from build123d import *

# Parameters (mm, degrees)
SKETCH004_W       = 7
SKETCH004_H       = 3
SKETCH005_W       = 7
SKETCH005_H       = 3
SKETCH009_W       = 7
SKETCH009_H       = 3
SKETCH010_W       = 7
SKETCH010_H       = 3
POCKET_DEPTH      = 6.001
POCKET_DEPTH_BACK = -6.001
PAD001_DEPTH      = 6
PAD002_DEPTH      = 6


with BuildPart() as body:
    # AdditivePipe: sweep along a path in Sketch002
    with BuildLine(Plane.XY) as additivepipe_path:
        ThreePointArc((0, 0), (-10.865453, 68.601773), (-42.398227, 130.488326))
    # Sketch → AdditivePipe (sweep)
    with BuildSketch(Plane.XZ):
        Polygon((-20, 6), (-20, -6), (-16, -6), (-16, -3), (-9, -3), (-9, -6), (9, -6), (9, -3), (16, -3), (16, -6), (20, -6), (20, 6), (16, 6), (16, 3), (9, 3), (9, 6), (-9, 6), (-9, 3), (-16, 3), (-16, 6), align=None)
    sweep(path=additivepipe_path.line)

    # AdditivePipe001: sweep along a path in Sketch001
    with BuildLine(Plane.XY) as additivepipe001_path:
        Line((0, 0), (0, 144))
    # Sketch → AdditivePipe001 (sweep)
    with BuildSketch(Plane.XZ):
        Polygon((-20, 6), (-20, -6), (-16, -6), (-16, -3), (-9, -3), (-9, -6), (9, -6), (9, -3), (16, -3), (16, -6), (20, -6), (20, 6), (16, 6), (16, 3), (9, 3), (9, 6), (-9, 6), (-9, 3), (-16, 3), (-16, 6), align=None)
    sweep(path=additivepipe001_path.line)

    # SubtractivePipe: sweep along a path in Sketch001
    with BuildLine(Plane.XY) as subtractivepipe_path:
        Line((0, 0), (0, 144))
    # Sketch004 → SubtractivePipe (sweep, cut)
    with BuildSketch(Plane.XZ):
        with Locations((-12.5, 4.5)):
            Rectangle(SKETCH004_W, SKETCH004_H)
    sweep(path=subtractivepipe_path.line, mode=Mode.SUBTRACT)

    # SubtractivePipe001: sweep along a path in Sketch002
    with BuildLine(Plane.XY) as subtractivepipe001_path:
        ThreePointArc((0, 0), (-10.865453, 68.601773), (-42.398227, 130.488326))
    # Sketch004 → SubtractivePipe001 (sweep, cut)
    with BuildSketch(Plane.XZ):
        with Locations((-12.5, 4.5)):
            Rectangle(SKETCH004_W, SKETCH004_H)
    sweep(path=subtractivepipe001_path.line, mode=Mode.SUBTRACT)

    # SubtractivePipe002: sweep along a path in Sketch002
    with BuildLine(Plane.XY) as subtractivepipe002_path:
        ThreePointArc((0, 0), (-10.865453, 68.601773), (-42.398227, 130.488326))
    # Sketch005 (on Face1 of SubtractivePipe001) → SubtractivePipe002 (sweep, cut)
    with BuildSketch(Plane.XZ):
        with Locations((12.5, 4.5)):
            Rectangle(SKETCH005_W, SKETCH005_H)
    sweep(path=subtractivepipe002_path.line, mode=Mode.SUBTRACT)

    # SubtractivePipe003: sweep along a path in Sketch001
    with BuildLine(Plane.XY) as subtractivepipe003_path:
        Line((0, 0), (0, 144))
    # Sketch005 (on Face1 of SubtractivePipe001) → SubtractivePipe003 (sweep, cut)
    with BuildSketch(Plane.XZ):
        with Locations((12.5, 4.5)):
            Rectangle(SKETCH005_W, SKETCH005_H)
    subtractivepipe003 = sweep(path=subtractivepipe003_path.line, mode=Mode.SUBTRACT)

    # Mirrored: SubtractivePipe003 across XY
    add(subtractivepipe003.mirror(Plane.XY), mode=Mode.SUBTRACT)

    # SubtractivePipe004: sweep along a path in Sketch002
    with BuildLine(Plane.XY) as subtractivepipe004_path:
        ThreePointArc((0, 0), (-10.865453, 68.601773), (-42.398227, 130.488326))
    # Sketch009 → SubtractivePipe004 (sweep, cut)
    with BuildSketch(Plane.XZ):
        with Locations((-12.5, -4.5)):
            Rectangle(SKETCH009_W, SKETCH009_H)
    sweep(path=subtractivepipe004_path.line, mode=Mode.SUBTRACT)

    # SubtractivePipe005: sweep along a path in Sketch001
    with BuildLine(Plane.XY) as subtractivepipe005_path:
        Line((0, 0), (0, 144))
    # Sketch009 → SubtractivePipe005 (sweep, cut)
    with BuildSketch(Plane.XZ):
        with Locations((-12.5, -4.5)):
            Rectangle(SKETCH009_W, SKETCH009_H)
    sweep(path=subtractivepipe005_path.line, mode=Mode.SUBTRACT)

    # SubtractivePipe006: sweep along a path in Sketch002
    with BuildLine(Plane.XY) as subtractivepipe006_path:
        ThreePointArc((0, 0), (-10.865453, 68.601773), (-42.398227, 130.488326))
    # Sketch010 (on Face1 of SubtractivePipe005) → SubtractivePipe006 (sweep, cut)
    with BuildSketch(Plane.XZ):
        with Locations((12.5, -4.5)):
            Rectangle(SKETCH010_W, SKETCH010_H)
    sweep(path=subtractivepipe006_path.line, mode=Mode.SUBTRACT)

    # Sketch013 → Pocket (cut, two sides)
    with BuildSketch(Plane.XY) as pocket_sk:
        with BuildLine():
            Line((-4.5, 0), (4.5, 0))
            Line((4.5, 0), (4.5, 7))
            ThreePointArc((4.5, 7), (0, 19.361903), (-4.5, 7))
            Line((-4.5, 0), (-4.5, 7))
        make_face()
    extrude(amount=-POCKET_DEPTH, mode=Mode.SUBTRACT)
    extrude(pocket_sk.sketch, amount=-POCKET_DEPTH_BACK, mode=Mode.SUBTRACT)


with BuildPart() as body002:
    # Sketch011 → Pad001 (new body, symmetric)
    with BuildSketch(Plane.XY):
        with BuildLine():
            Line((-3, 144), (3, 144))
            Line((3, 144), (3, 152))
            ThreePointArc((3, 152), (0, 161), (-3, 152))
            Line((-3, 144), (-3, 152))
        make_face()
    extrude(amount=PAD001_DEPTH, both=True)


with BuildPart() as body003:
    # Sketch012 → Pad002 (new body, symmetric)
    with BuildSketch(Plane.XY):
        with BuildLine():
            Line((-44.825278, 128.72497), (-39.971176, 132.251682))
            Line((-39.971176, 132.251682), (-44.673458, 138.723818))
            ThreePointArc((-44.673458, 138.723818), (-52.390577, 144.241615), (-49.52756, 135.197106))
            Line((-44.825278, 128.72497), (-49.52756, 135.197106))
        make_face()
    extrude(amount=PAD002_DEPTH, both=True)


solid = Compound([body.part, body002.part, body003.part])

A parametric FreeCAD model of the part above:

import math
import FreeCAD as App
import Part
import Sketcher
from FreeCAD import Vector
Q = App.Units.Quantity


def add_polygon(sketch, points):
    """Adds a closed chain of lines whose ends are joined by coincident constraints."""
    first, n = sketch.GeometryCount, len(points)
    for a, b in zip(points, points[1:] + points[:1]):
        sketch.addGeometry(Part.LineSegment(App.Vector(*a, 0), App.Vector(*b, 0)), False)
    for i in range(n):
        sketch.addConstraint(Sketcher.Constraint("Coincident", first + i, 2, first + (i + 1) % n, 1))

doc = App.newDocument("Part")
body = doc.addObject("PartDesign::Body", "Body")

# Sketch on XZ plane
sketch1 = body.newObject("Sketcher::SketchObject", "Sketch")
sketch1.AttachmentSupport = (doc.getObject("XZ_Plane"), [""])
sketch1.MapMode = "FlatFace"
add_polygon(sketch1, [(-20, 6), (-20, -6), (-16, -6), (-16, -3), (-9, -3), (-9, -6), (9, -6), (9, -3), (16, -3), (16, -6), (20, -6), (20, 6), (16, 6), (16, 3), (9, 3), (9, 6), (-9, 6), (-9, 3), (-16, 3), (-16, 6)])  # lines 0-19
sketch1.addConstraint([
    Sketcher.Constraint("Vertical", 0),
    Sketcher.Constraint("Horizontal", 1),
    Sketcher.Constraint("Vertical", 2),
    Sketcher.Constraint("Horizontal", 3),
    Sketcher.Constraint("Vertical", 4),
    Sketcher.Constraint("Horizontal", 5),
    Sketcher.Constraint("Vertical", 6),
    Sketcher.Constraint("Horizontal", 7),
    Sketcher.Constraint("Vertical", 8),
    Sketcher.Constraint("Horizontal", 9),
    Sketcher.Constraint("Vertical", 10),
    Sketcher.Constraint("Horizontal", 11),
    Sketcher.Constraint("Vertical", 12),
    Sketcher.Constraint("Horizontal", 13),
    Sketcher.Constraint("Vertical", 14),
    Sketcher.Constraint("Horizontal", 15),
    Sketcher.Constraint("Vertical", 16),
    Sketcher.Constraint("Horizontal", 17),
    Sketcher.Constraint("Vertical", 18),
    Sketcher.Constraint("Horizontal", 19),
    Sketcher.Constraint("Symmetric", 0, 2, 10, 2, -1, 1),
    Sketcher.Constraint("Symmetric", 2, 2, 12, 2, -1, 1),
    Sketcher.Constraint("Symmetric", 4, 2, 14, 2, -1, 1),
    Sketcher.Constraint("Symmetric", 6, 2, 16, 2, -1, 1),
    Sketcher.Constraint("Symmetric", 8, 2, 18, 2, -1, 1),
    Sketcher.Constraint("Symmetric", 3, 2, 6, 2, -2),
    Sketcher.Constraint("Symmetric", 1, 2, 8, 2, -2),
    Sketcher.Constraint("Horizontal", 1, 2, 4, 2),
    Sketcher.Constraint("DistanceX", 1, 1, 1, 2, Q("4 mm")),
    Sketcher.Constraint("DistanceX", 3, 1, 3, 2, Q("7 mm")),
    Sketcher.Constraint("DistanceX", 5, 1, 5, 2, Q("18 mm")),
    Sketcher.Constraint("DistanceY", 0, 2, 0, 1, Q("12 mm")),
    Sketcher.Constraint("DistanceY", 2, 1, 2, 2, Q("3 mm")),
])

# Sketch on XY plane
sketch2 = body.newObject("Sketcher::SketchObject", "Sketch001")
sketch2.AttachmentSupport = (doc.getObject("XY_Plane"), [""])
sketch2.MapMode = "FlatFace"
sketch2.addGeometry(Part.ArcOfCircle(Part.Circle(Vector(-222, 0, 0), Vector(0, 0, 1), 222), math.radians(0), math.radians(36)), False)
sketch2.addConstraint([
    Sketcher.Constraint("Coincident", 0, 1, -1, 1),
    Sketcher.Constraint("Radius", 0, Q("221.999993 mm")),
    Sketcher.Constraint("DistanceX", 0, 2, -1, 1, Q("42.398227 mm")),
    Sketcher.Constraint("DistanceY", -1, 1, 0, 2, Q("130.488326 mm")),
])
doc.recompute()

additivepipe = body.newObject("PartDesign::AdditivePipe", "AdditivePipe")
additivepipe.Profile = sketch1
additivepipe.Spine = (sketch2, ["Edge1"])

# Sketch on XZ plane
sketch3 = body.newObject("Sketcher::SketchObject", "Sketch002")
sketch3.AttachmentSupport = (doc.getObject("XZ_Plane"), [""])
sketch3.MapMode = "FlatFace"
add_polygon(sketch3, [(-20, 6), (-20, -6), (-16, -6), (-16, -3), (-9, -3), (-9, -6), (9, -6), (9, -3), (16, -3), (16, -6), (20, -6), (20, 6), (16, 6), (16, 3), (9, 3), (9, 6), (-9, 6), (-9, 3), (-16, 3), (-16, 6)])  # lines 0-19
sketch3.addConstraint([
    Sketcher.Constraint("Vertical", 0),
    Sketcher.Constraint("Horizontal", 1),
    Sketcher.Constraint("Vertical", 2),
    Sketcher.Constraint("Horizontal", 3),
    Sketcher.Constraint("Vertical", 4),
    Sketcher.Constraint("Horizontal", 5),
    Sketcher.Constraint("Vertical", 6),
    Sketcher.Constraint("Horizontal", 7),
    Sketcher.Constraint("Vertical", 8),
    Sketcher.Constraint("Horizontal", 9),
    Sketcher.Constraint("Vertical", 10),
    Sketcher.Constraint("Horizontal", 11),
    Sketcher.Constraint("Vertical", 12),
    Sketcher.Constraint("Horizontal", 13),
    Sketcher.Constraint("Vertical", 14),
    Sketcher.Constraint("Horizontal", 15),
    Sketcher.Constraint("Vertical", 16),
    Sketcher.Constraint("Horizontal", 17),
    Sketcher.Constraint("Vertical", 18),
    Sketcher.Constraint("Horizontal", 19),
    Sketcher.Constraint("Symmetric", 0, 2, 10, 2, -1, 1),
    Sketcher.Constraint("Symmetric", 2, 2, 12, 2, -1, 1),
    Sketcher.Constraint("Symmetric", 4, 2, 14, 2, -1, 1),
    Sketcher.Constraint("Symmetric", 6, 2, 16, 2, -1, 1),
    Sketcher.Constraint("Symmetric", 8, 2, 18, 2, -1, 1),
    Sketcher.Constraint("Symmetric", 3, 2, 6, 2, -2),
    Sketcher.Constraint("Symmetric", 1, 2, 8, 2, -2),
    Sketcher.Constraint("Horizontal", 1, 2, 4, 2),
    Sketcher.Constraint("DistanceX", 1, 1, 1, 2, Q("4 mm")),
    Sketcher.Constraint("DistanceX", 3, 1, 3, 2, Q("7 mm")),
    Sketcher.Constraint("DistanceX", 5, 1, 5, 2, Q("18 mm")),
    Sketcher.Constraint("DistanceY", 0, 2, 0, 1, Q("12 mm")),
    Sketcher.Constraint("DistanceY", 2, 1, 2, 2, Q("3 mm")),
])

# Sketch on XY plane
sketch4 = body.newObject("Sketcher::SketchObject", "Sketch003")
sketch4.AttachmentSupport = (doc.getObject("XY_Plane"), [""])
sketch4.MapMode = "FlatFace"
sketch4.addGeometry(Part.LineSegment(Vector(0, 0, 0), Vector(0, 144, 0)), False)
sketch4.addConstraint([
    Sketcher.Constraint("Vertical", 0),
    Sketcher.Constraint("Coincident", 0, 1, -1, 1),
    Sketcher.Constraint("DistanceY", 0, 1, 0, 2, Q("144 mm")),
])
doc.recompute()

additivepipe2 = body.newObject("PartDesign::AdditivePipe", "AdditivePipe001")
additivepipe2.Profile = sketch3
additivepipe2.Spine = (sketch4, ["Edge1"])

# Sketch on XZ plane
sketch5 = body.newObject("Sketcher::SketchObject", "Sketch004")
sketch5.AttachmentSupport = (doc.getObject("XZ_Plane"), [""])
sketch5.MapMode = "FlatFace"
add_polygon(sketch5, [(-16, 6), (-16, 3), (-9, 3), (-9, 6)])  # lines 0-3
sketch5.addConstraint([
    Sketcher.Constraint("Vertical", 0),
    Sketcher.Constraint("Horizontal", 1),
    Sketcher.Constraint("Vertical", 2),
    Sketcher.Constraint("Horizontal", 3),
    Sketcher.Constraint("DistanceX", 1, 1, 1, 2, Q("7 mm")),
    Sketcher.Constraint("DistanceY", 0, 2, 0, 1, Q("3 mm")),
    Sketcher.Constraint("DistanceX", 0, 2, -1, 1, Q("16 mm")),
    Sketcher.Constraint("DistanceY", -1, 1, 0, 2, Q("3 mm")),
])

# Sketch on XY plane
sketch6 = body.newObject("Sketcher::SketchObject", "Sketch005")
sketch6.AttachmentSupport = (doc.getObject("XY_Plane"), [""])
sketch6.MapMode = "FlatFace"
sketch6.addGeometry(Part.LineSegment(Vector(0, 0, 0), Vector(0, 144, 0)), False)
sketch6.addConstraint([
    Sketcher.Constraint("Vertical", 0),
    Sketcher.Constraint("Coincident", 0, 1, -1, 1),
    Sketcher.Constraint("DistanceY", 0, 1, 0, 2, Q("144 mm")),
])
doc.recompute()

subtractivepipe = body.newObject("PartDesign::SubtractivePipe", "SubtractivePipe")
subtractivepipe.Profile = sketch5
subtractivepipe.Spine = (sketch6, ["Edge1"])

# Sketch on XZ plane
sketch7 = body.newObject("Sketcher::SketchObject", "Sketch006")
sketch7.AttachmentSupport = (doc.getObject("XZ_Plane"), [""])
sketch7.MapMode = "FlatFace"
add_polygon(sketch7, [(-16, 6), (-16, 3), (-9, 3), (-9, 6)])  # lines 0-3
sketch7.addConstraint([
    Sketcher.Constraint("Vertical", 0),
    Sketcher.Constraint("Horizontal", 1),
    Sketcher.Constraint("Vertical", 2),
    Sketcher.Constraint("Horizontal", 3),
    Sketcher.Constraint("DistanceX", 1, 1, 1, 2, Q("7 mm")),
    Sketcher.Constraint("DistanceY", 0, 2, 0, 1, Q("3 mm")),
    Sketcher.Constraint("DistanceX", 0, 2, -1, 1, Q("16 mm")),
    Sketcher.Constraint("DistanceY", -1, 1, 0, 2, Q("3 mm")),
])

# Sketch on XY plane
sketch8 = body.newObject("Sketcher::SketchObject", "Sketch007")
sketch8.AttachmentSupport = (doc.getObject("XY_Plane"), [""])
sketch8.MapMode = "FlatFace"
sketch8.addGeometry(Part.ArcOfCircle(Part.Circle(Vector(-222, 0, 0), Vector(0, 0, 1), 222), math.radians(0), math.radians(36)), False)
sketch8.addConstraint([
    Sketcher.Constraint("Coincident", 0, 1, -1, 1),
    Sketcher.Constraint("Radius", 0, Q("221.999993 mm")),
    Sketcher.Constraint("DistanceX", 0, 2, -1, 1, Q("42.398227 mm")),
    Sketcher.Constraint("DistanceY", -1, 1, 0, 2, Q("130.488326 mm")),
])
doc.recompute()

subtractivepipe2 = body.newObject("PartDesign::SubtractivePipe", "SubtractivePipe001")
subtractivepipe2.Profile = sketch7
subtractivepipe2.Spine = (sketch8, ["Edge1"])

# Sketch on XZ plane
sketch9 = body.newObject("Sketcher::SketchObject", "Sketch008")
sketch9.AttachmentSupport = (doc.getObject("XZ_Plane"), [""])
sketch9.MapMode = "FlatFace"
add_polygon(sketch9, [(9, 6), (9, 3), (16, 3), (16, 6)])  # lines 0-3
sketch9.addConstraint([
    Sketcher.Constraint("Vertical", 0),
    Sketcher.Constraint("Horizontal", 1),
    Sketcher.Constraint("Vertical", 2),
    Sketcher.Constraint("Horizontal", 3),
    Sketcher.Constraint("DistanceX", 1, 1, 1, 2, Q("7 mm")),
    Sketcher.Constraint("DistanceY", 0, 2, 0, 1, Q("3 mm")),
    Sketcher.Constraint("DistanceX", -1, 1, 0, 2, Q("9 mm")),
    Sketcher.Constraint("DistanceY", -1, 1, 0, 2, Q("3 mm")),
])

# Sketch on XY plane
sketch10 = body.newObject("Sketcher::SketchObject", "Sketch009")
sketch10.AttachmentSupport = (doc.getObject("XY_Plane"), [""])
sketch10.MapMode = "FlatFace"
sketch10.addGeometry(Part.ArcOfCircle(Part.Circle(Vector(-222, 0, 0), Vector(0, 0, 1), 222), math.radians(0), math.radians(36)), False)
sketch10.addConstraint([
    Sketcher.Constraint("Coincident", 0, 1, -1, 1),
    Sketcher.Constraint("Radius", 0, Q("221.999993 mm")),
    Sketcher.Constraint("DistanceX", 0, 2, -1, 1, Q("42.398227 mm")),
    Sketcher.Constraint("DistanceY", -1, 1, 0, 2, Q("130.488326 mm")),
])
doc.recompute()

subtractivepipe3 = body.newObject("PartDesign::SubtractivePipe", "SubtractivePipe002")
subtractivepipe3.Profile = sketch9
subtractivepipe3.Spine = (sketch10, ["Edge1"])

# Sketch on XZ plane
sketch11 = body.newObject("Sketcher::SketchObject", "Sketch010")
sketch11.AttachmentSupport = (doc.getObject("XZ_Plane"), [""])
sketch11.MapMode = "FlatFace"
add_polygon(sketch11, [(9, 6), (9, 3), (16, 3), (16, 6)])  # lines 0-3
sketch11.addConstraint([
    Sketcher.Constraint("Vertical", 0),
    Sketcher.Constraint("Horizontal", 1),
    Sketcher.Constraint("Vertical", 2),
    Sketcher.Constraint("Horizontal", 3),
    Sketcher.Constraint("DistanceX", 1, 1, 1, 2, Q("7 mm")),
    Sketcher.Constraint("DistanceY", 0, 2, 0, 1, Q("3 mm")),
    Sketcher.Constraint("DistanceX", -1, 1, 0, 2, Q("9 mm")),
    Sketcher.Constraint("DistanceY", -1, 1, 0, 2, Q("3 mm")),
])

# Sketch on XY plane
sketch12 = body.newObject("Sketcher::SketchObject", "Sketch011")
sketch12.AttachmentSupport = (doc.getObject("XY_Plane"), [""])
sketch12.MapMode = "FlatFace"
sketch12.addGeometry(Part.LineSegment(Vector(0, 0, 0), Vector(0, 144, 0)), False)
sketch12.addConstraint([
    Sketcher.Constraint("Vertical", 0),
    Sketcher.Constraint("Coincident", 0, 1, -1, 1),
    Sketcher.Constraint("DistanceY", 0, 1, 0, 2, Q("144 mm")),
])
doc.recompute()

subtractivepipe4 = body.newObject("PartDesign::SubtractivePipe", "SubtractivePipe003")
subtractivepipe4.Profile = sketch11
subtractivepipe4.Spine = (sketch12, ["Edge1"])
doc.recompute()

mirrored = body.newObject("PartDesign::Mirrored", "Mirrored")
mirrored.Originals = [subtractivepipe4]
mirrored.MirrorPlane = (doc.getObject("XY_Plane"), [""])
body.Tip = mirrored

# Sketch on XZ plane
sketch13 = body.newObject("Sketcher::SketchObject", "Sketch012")
sketch13.AttachmentSupport = (doc.getObject("XZ_Plane"), [""])
sketch13.MapMode = "FlatFace"
add_polygon(sketch13, [(-16, -3), (-16, -6), (-9, -6), (-9, -3)])  # lines 0-3
sketch13.addConstraint([
    Sketcher.Constraint("Vertical", 0),
    Sketcher.Constraint("Horizontal", 1),
    Sketcher.Constraint("Vertical", 2),
    Sketcher.Constraint("Horizontal", 3),
    Sketcher.Constraint("DistanceX", 1, 1, 1, 2, Q("7 mm")),
    Sketcher.Constraint("DistanceY", 0, 2, 0, 1, Q("3 mm")),
    Sketcher.Constraint("DistanceX", 0, 2, -1, 1, Q("16 mm")),
    Sketcher.Constraint("DistanceY", 0, 2, -1, 1, Q("6 mm")),
])

# Sketch on XY plane
sketch14 = body.newObject("Sketcher::SketchObject", "Sketch013")
sketch14.AttachmentSupport = (doc.getObject("XY_Plane"), [""])
sketch14.MapMode = "FlatFace"
sketch14.addGeometry(Part.ArcOfCircle(Part.Circle(Vector(-222, 0, 0), Vector(0, 0, 1), 222), math.radians(0), math.radians(36)), False)
sketch14.addConstraint([
    Sketcher.Constraint("Coincident", 0, 1, -1, 1),
    Sketcher.Constraint("Radius", 0, Q("221.999993 mm")),
    Sketcher.Constraint("DistanceX", 0, 2, -1, 1, Q("42.398227 mm")),
    Sketcher.Constraint("DistanceY", -1, 1, 0, 2, Q("130.488326 mm")),
])
doc.recompute()

subtractivepipe5 = body.newObject("PartDesign::SubtractivePipe", "SubtractivePipe004")
subtractivepipe5.Profile = sketch13
subtractivepipe5.Spine = (sketch14, ["Edge1"])

# Sketch on XZ plane
sketch15 = body.newObject("Sketcher::SketchObject", "Sketch014")
sketch15.AttachmentSupport = (doc.getObject("XZ_Plane"), [""])
sketch15.MapMode = "FlatFace"
add_polygon(sketch15, [(-16, -3), (-16, -6), (-9, -6), (-9, -3)])  # lines 0-3
sketch15.addConstraint([
    Sketcher.Constraint("Vertical", 0),
    Sketcher.Constraint("Horizontal", 1),
    Sketcher.Constraint("Vertical", 2),
    Sketcher.Constraint("Horizontal", 3),
    Sketcher.Constraint("DistanceX", 1, 1, 1, 2, Q("7 mm")),
    Sketcher.Constraint("DistanceY", 0, 2, 0, 1, Q("3 mm")),
    Sketcher.Constraint("DistanceX", 0, 2, -1, 1, Q("16 mm")),
    Sketcher.Constraint("DistanceY", 0, 2, -1, 1, Q("6 mm")),
])

# Sketch on XY plane
sketch16 = body.newObject("Sketcher::SketchObject", "Sketch015")
sketch16.AttachmentSupport = (doc.getObject("XY_Plane"), [""])
sketch16.MapMode = "FlatFace"
sketch16.addGeometry(Part.LineSegment(Vector(0, 0, 0), Vector(0, 144, 0)), False)
sketch16.addConstraint([
    Sketcher.Constraint("Vertical", 0),
    Sketcher.Constraint("Coincident", 0, 1, -1, 1),
    Sketcher.Constraint("DistanceY", 0, 1, 0, 2, Q("144 mm")),
])
doc.recompute()

subtractivepipe6 = body.newObject("PartDesign::SubtractivePipe", "SubtractivePipe005")
subtractivepipe6.Profile = sketch15
subtractivepipe6.Spine = (sketch16, ["Edge1"])

# Sketch on XZ plane
sketch17 = body.newObject("Sketcher::SketchObject", "Sketch016")
sketch17.AttachmentSupport = (doc.getObject("XZ_Plane"), [""])
sketch17.MapMode = "FlatFace"
add_polygon(sketch17, [(9, -3), (9, -6), (16, -6), (16, -3)])  # lines 0-3
sketch17.addConstraint([
    Sketcher.Constraint("Vertical", 0),
    Sketcher.Constraint("Horizontal", 1),
    Sketcher.Constraint("Vertical", 2),
    Sketcher.Constraint("Horizontal", 3),
    Sketcher.Constraint("DistanceX", 1, 1, 1, 2, Q("7 mm")),
    Sketcher.Constraint("DistanceY", 0, 2, 0, 1, Q("3 mm")),
    Sketcher.Constraint("DistanceX", -1, 1, 0, 2, Q("9 mm")),
    Sketcher.Constraint("DistanceY", 0, 2, -1, 1, Q("6 mm")),
])

# Sketch on XY plane
sketch18 = body.newObject("Sketcher::SketchObject", "Sketch017")
sketch18.AttachmentSupport = (doc.getObject("XY_Plane"), [""])
sketch18.MapMode = "FlatFace"
sketch18.addGeometry(Part.ArcOfCircle(Part.Circle(Vector(-222, 0, 0), Vector(0, 0, 1), 222), math.radians(0), math.radians(36)), False)
sketch18.addConstraint([
    Sketcher.Constraint("Coincident", 0, 1, -1, 1),
    Sketcher.Constraint("Radius", 0, Q("221.999993 mm")),
    Sketcher.Constraint("DistanceX", 0, 2, -1, 1, Q("42.398227 mm")),
    Sketcher.Constraint("DistanceY", -1, 1, 0, 2, Q("130.488326 mm")),
])
doc.recompute()

subtractivepipe7 = body.newObject("PartDesign::SubtractivePipe", "SubtractivePipe006")
subtractivepipe7.Profile = sketch17
subtractivepipe7.Spine = (sketch18, ["Edge1"])

# Sketch on XY plane
sketch19 = body.newObject("Sketcher::SketchObject", "Sketch018")
sketch19.AttachmentSupport = (doc.getObject("XY_Plane"), [""])
sketch19.MapMode = "FlatFace"
sketch19.addGeometry([
    Part.LineSegment(Vector(-4, 0, 0), Vector(4, 0, 0)),
    Part.LineSegment(Vector(4, 0, 0), Vector(4, 7, 0)),
    Part.ArcOfCircle(Part.Circle(Vector(0, 12, 0), Vector(0, 0, 1), 7), math.radians(-50), math.radians(230)),
    Part.LineSegment(Vector(-4, 7, 0), Vector(-4, 0, 0)),
], False)
sketch19.addConstraint([
    Sketcher.Constraint("Coincident", 0, 2, 1, 1),
    Sketcher.Constraint("Coincident", 1, 2, 2, 1),
    Sketcher.Constraint("Coincident", 2, 2, 3, 1),
    Sketcher.Constraint("Coincident", 3, 2, 0, 1),
    Sketcher.Constraint("Horizontal", 0),
    Sketcher.Constraint("Vertical", 1),
    Sketcher.Constraint("Vertical", 3),
    Sketcher.Constraint("Symmetric", 0, 2, 3, 2, -1, 1),
    Sketcher.Constraint("PointOnObject", 2, 3, -2),
    Sketcher.Constraint("Radius", 2, Q("7 mm")),
    Sketcher.Constraint("DistanceX", 0, 1, 0, 2, Q("9 mm")),
    Sketcher.Constraint("DistanceY", 1, 1, 1, 2, Q("7 mm")),
])
pocket1 = body.newObject("PartDesign::Pocket", "Pocket")
pocket1.Profile = sketch19
pocket1.Type = "ThroughAll"
pocket1.Midplane = True
body2 = doc.addObject("PartDesign::Body", "Body001")

# Sketch on XY plane
sketch20 = body2.newObject("Sketcher::SketchObject", "Sketch019")
sketch20.AttachmentSupport = (doc.getObject("XY_Plane001"), [""])
sketch20.MapMode = "FlatFace"
sketch20.addGeometry([
    Part.LineSegment(Vector(-3, 144, 0), Vector(3, 144, 0)),
    Part.LineSegment(Vector(3, 144, 0), Vector(3, 152, 0)),
    Part.ArcOfCircle(Part.Circle(Vector(0, 156, 0), Vector(0, 0, 1), 5), math.radians(-53), math.radians(233)),
    Part.LineSegment(Vector(-3, 152, 0), Vector(-3, 144, 0)),
], False)
sketch20.addConstraint([
    Sketcher.Constraint("Coincident", 0, 2, 1, 1),
    Sketcher.Constraint("Coincident", 1, 2, 2, 1),
    Sketcher.Constraint("Coincident", 2, 2, 3, 1),
    Sketcher.Constraint("Coincident", 3, 2, 0, 1),
    Sketcher.Constraint("Horizontal", 0),
    Sketcher.Constraint("Vertical", 1),
    Sketcher.Constraint("Vertical", 3),
    Sketcher.Constraint("Symmetric", 1, 2, 2, 2, -2),
    Sketcher.Constraint("Radius", 2, Q("5 mm")),
    Sketcher.Constraint("DistanceX", 0, 1, 0, 2, Q("6 mm")),
    Sketcher.Constraint("DistanceY", 1, 1, 1, 2, Q("8 mm")),
    Sketcher.Constraint("DistanceY", -1, 1, 2, 3, Q("156 mm")),
])
pad1 = body2.newObject("PartDesign::Pad", "Pad")
pad1.Profile = sketch20
pad1.Length = 12
pad1.Midplane = True
body3 = doc.addObject("PartDesign::Body", "Body002")

# Sketch on XY plane
sketch21 = body3.newObject("Sketcher::SketchObject", "Sketch020")
sketch21.AttachmentSupport = (doc.getObject("XY_Plane002"), [""])
sketch21.MapMode = "FlatFace"
sketch21.addGeometry([
    Part.LineSegment(Vector(-45, 129, 0), Vector(-40, 132, 0)),
    Part.LineSegment(Vector(-40, 132, 0), Vector(-45, 139, 0)),
    Part.ArcOfCircle(Part.Circle(Vector(-49, 140, 0), Vector(0, 0, 1), 5), math.radians(-17), math.radians(269)),
    Part.LineSegment(Vector(-50, 135, 0), Vector(-45, 129, 0)),
], False)
sketch21.addConstraint([
    Sketcher.Constraint("Coincident", 0, 2, 1, 1),
    Sketcher.Constraint("Coincident", 1, 2, 2, 1),
    Sketcher.Constraint("Coincident", 2, 2, 3, 1),
    Sketcher.Constraint("Coincident", 3, 2, 0, 1),
    Sketcher.Constraint("Perpendicular", 0, 1),
    Sketcher.Constraint("Parallel", 1, 3),
    Sketcher.Constraint("Equal", 1, 3),
    Sketcher.Constraint("Radius", 2, Q("5 mm")),
    Sketcher.Constraint("Angle", 0, Q("36.000004 deg")),
    Sketcher.Constraint("Distance", 0, Q("6 mm")),
    Sketcher.Constraint("Distance", 1, Q("8 mm")),
    Sketcher.Constraint("DistanceX", 2, 3, -1, 1, Q("49.45165 mm")),
    Sketcher.Constraint("DistanceY", -1, 1, 2, 3, Q("140.19653 mm")),
])
pad2 = body3.newObject("PartDesign::Pad", "Pad001")
pad2.Profile = sketch21
pad2.Length = 12
pad2.Midplane = True

doc.recompute()
